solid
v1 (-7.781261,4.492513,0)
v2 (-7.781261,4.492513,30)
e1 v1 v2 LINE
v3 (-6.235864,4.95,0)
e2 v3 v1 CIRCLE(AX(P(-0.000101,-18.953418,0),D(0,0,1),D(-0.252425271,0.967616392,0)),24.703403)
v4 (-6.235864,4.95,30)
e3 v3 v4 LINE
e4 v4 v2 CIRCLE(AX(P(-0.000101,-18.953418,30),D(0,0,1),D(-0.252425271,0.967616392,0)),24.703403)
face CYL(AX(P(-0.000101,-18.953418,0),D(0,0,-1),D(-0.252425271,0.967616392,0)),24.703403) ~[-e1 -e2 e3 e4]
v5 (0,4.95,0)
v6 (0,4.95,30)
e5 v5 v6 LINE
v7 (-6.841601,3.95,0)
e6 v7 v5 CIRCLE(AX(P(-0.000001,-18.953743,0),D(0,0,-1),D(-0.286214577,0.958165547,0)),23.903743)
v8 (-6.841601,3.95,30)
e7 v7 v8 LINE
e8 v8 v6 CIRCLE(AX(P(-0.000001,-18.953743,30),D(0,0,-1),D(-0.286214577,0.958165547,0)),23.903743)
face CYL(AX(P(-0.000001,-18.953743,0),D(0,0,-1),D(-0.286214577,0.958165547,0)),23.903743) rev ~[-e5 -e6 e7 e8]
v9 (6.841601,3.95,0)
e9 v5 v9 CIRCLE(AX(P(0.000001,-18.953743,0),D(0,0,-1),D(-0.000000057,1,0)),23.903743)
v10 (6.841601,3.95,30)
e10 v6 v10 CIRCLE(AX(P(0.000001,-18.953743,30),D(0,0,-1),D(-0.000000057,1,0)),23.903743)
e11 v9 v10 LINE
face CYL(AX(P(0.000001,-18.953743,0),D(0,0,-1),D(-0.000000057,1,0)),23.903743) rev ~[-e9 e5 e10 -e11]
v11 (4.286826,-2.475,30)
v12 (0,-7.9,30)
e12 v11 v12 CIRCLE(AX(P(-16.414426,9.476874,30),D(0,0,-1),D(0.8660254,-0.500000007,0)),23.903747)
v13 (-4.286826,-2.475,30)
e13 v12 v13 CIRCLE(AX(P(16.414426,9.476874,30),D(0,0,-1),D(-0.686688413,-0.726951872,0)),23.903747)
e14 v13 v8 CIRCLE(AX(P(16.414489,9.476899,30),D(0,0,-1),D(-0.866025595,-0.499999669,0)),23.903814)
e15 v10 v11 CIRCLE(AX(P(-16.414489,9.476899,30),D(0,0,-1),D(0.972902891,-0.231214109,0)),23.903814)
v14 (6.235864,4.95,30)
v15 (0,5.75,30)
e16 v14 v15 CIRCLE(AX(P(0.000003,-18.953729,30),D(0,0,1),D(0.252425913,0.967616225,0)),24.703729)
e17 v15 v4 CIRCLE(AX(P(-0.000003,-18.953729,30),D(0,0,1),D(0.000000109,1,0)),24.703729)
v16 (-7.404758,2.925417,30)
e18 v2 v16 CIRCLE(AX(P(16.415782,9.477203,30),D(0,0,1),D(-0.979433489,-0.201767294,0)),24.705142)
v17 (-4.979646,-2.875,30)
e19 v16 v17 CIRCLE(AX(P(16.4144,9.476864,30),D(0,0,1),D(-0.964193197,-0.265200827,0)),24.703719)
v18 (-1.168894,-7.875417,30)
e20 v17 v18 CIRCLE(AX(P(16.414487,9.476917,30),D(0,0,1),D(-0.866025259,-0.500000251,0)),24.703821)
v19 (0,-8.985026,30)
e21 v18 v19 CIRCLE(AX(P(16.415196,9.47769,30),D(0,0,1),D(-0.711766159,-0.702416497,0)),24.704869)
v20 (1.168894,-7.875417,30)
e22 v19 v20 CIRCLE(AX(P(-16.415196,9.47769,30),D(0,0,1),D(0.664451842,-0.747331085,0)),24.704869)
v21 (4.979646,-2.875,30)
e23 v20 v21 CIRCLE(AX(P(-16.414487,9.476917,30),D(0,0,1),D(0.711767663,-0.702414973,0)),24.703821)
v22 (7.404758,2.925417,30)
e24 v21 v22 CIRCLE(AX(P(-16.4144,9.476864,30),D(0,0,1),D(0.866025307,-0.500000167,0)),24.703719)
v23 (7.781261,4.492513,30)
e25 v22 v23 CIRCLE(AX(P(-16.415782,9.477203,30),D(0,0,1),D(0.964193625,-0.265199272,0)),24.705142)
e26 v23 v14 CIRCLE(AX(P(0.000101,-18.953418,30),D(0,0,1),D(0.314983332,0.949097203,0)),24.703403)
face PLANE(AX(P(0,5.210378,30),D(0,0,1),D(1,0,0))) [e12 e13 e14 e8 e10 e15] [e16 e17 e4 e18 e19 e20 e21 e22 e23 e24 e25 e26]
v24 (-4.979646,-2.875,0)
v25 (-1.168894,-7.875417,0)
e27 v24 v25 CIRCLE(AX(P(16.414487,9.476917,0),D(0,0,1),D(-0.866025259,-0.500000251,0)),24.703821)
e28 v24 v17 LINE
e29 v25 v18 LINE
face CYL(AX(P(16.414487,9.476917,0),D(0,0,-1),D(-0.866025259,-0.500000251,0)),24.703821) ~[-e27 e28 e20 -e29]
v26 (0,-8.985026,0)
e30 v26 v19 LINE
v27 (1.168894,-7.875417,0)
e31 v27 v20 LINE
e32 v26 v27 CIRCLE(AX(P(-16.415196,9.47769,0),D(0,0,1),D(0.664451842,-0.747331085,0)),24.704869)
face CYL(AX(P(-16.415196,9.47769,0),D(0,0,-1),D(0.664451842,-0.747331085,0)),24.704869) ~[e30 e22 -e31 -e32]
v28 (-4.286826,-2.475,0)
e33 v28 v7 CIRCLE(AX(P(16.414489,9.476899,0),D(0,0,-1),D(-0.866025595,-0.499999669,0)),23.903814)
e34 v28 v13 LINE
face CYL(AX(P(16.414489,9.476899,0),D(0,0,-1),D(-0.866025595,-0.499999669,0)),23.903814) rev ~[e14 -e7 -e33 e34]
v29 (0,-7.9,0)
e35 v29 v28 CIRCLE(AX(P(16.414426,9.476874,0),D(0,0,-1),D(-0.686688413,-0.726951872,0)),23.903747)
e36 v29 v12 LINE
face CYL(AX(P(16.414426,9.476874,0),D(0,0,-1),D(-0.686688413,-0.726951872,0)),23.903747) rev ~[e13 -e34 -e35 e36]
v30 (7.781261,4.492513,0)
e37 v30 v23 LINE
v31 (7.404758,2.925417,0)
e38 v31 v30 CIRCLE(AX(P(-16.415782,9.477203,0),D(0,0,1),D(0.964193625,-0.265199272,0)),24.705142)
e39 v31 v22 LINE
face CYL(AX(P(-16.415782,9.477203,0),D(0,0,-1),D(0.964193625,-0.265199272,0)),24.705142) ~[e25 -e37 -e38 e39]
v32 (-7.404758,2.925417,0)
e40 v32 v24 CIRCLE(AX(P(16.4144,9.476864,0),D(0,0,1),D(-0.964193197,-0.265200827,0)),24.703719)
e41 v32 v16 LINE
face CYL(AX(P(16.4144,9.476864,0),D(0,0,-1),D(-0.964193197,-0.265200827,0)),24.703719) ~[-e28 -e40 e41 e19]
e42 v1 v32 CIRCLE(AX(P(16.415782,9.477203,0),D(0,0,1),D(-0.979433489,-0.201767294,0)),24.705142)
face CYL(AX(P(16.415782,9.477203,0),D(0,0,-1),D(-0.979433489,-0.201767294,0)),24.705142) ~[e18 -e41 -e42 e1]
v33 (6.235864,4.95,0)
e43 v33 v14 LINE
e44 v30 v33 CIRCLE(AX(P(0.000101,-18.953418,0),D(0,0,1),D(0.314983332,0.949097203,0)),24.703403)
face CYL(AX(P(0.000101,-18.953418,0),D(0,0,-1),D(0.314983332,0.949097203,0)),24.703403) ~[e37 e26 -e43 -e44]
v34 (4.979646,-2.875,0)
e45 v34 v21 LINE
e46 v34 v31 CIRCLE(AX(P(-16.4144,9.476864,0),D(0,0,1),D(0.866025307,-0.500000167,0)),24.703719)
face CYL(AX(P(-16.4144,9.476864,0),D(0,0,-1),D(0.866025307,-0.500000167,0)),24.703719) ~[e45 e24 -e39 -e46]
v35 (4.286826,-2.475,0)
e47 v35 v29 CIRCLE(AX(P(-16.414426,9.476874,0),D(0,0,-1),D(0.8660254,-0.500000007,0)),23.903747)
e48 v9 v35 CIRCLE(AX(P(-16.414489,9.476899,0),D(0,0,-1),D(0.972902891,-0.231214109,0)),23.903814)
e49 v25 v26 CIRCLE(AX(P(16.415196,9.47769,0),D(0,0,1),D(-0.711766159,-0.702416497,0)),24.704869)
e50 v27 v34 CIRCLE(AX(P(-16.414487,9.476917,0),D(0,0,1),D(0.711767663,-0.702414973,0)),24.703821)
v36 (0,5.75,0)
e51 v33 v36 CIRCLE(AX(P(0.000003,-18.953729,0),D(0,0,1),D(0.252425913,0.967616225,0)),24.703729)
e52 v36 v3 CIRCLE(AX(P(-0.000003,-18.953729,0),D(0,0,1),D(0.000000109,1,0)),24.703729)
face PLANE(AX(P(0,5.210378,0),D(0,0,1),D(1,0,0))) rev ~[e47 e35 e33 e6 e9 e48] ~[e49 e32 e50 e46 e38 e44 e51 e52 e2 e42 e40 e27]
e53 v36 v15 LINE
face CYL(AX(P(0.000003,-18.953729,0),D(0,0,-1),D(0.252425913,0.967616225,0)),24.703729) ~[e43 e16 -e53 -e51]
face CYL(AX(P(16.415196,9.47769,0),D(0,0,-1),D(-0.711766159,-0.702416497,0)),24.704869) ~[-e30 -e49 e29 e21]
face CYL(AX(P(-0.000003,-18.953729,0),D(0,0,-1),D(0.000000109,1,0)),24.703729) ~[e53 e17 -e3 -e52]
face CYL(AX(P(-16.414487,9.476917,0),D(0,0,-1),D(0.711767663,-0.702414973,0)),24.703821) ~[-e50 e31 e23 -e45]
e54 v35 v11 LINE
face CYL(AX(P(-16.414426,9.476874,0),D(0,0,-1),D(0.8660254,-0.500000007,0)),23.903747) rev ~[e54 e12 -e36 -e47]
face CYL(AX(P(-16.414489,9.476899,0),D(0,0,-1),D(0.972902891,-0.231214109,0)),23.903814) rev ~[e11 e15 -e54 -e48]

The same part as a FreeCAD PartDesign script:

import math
import FreeCAD as App
import Part
import Sketcher
from FreeCAD import Vector
Q = App.Units.Quantity

doc = App.newDocument("Part")
body = doc.addObject("PartDesign::Body", "Body")

# Sketch on XY plane
sketch1 = body.newObject("Sketcher::SketchObject", "Sketch")
sketch1.AttachmentSupport = (doc.getObject("XY_Plane"), [""])
sketch1.MapMode = "FlatFace"
sketch1.addGeometry([
    Part.ArcOfCircle(Part.Circle(Vector(-16.415196, 9.47769, 0), Vector(0, 0, 1), 24.704869), math.radians(-48.359714), math.radians(-44.621203)),  # 0
    Part.ArcOfCircle(Part.Circle(Vector(-16.414487, 9.476917, 0), Vector(0, 0, 1), 24.703821), math.radians(-44.62108), math.radians(-30.000017)),  # 1
    Part.ArcOfCircle(Part.Circle(Vector(-16.4144, 9.476864, 0), Vector(0, 0, 1), 24.703719), math.radians(-30.000011), math.radians(-15.378886)),  # 2
    Part.ArcOfCircle(Part.Circle(Vector(-16.415782, 9.477203, 0), Vector(0, 0, 1), 24.705142), math.radians(-15.378794), math.radians(-11.640325)),  # 3
    Part.ArcOfCircle(Part.Circle(Vector(0.000101, -18.953418, 0), Vector(0, 0, 1), 24.703403), math.radians(71.640192), math.radians(75.378926)),  # 4
    Part.ArcOfCircle(Part.Circle(Vector(0.000003, -18.953729, 0), Vector(0, 0, 1), 24.703729), math.radians(75.378888), math.radians(90.000006)),  # 5
    Part.ArcOfCircle(Part.Circle(Vector(-0.000003, -18.953729, 0), Vector(0, 0, 1), 24.703729), math.radians(89.999994), math.radians(104.621112)),  # 6
    Part.ArcOfCircle(Part.Circle(Vector(-0.000101, -18.953418, 0), Vector(0, 0, 1), 24.703403), math.radians(104.621074), math.radians(108.359808)),  # 7
    Part.ArcOfCircle(Part.Circle(Vector(16.415782, 9.477203, 0), Vector(0, 0, 1), 24.705142), math.radians(-168.359675), math.radians(-164.621206)),  # 8
    Part.ArcOfCircle(Part.Circle(Vector(16.4144, 9.476864, 0), Vector(0, 0, 1), 24.703719), math.radians(-164.621114), math.radians(-149.999989)),  # 9
    Part.ArcOfCircle(Part.Circle(Vector(16.414487, 9.476917, 0), Vector(0, 0, 1), 24.703821), math.radians(-149.999983), math.radians(-135.37892)),  # 10
    Part.ArcOfCircle(Part.Circle(Vector(16.415196, 9.47769, 0), Vector(0, 0, 1), 24.704869), math.radians(-135.378797), math.radians(-131.640286)),  # 11
    Part.ArcOfCircle(Part.Circle(Vector(-16.414489, 9.476899, 0), Vector(0, 0, 1), 23.903814), math.radians(-29.999978), math.radians(-13.368562)),  # 12
    Part.ArcOfCircle(Part.Circle(Vector(-16.414426, 9.476874, 0), Vector(0, 0, 1), 23.903747), math.radians(-46.631464), math.radians(-30)),  # 13
    Part.ArcOfCircle(Part.Circle(Vector(16.414426, 9.476874, 0), Vector(0, 0, 1), 23.903747), math.radians(-150), math.radians(-133.368536)),  # 14
    Part.ArcOfCircle(Part.Circle(Vector(16.414489, 9.476899, 0), Vector(0, 0, 1), 23.903814), math.radians(-166.631438), math.radians(-150.000022)),  # 15
    Part.ArcOfCircle(Part.Circle(Vector(-0.000001, -18.953743, 0), Vector(0, 0, 1), 23.903743), math.radians(89.999997), math.radians(106.631463)),  # 16
    Part.ArcOfCircle(Part.Circle(Vector(0.000001, -18.953743, 0), Vector(0, 0, 1), 23.903743), math.radians(73.368537), math.radians(90.000003)),  # 17
], False)
sketch1.addConstraint([
    Sketcher.Constraint("Coincident", 0, 2, 1, 1),
    Sketcher.Constraint("Coincident", 1, 2, 2, 1),
    Sketcher.Constraint("Coincident", 2, 2, 3, 1),
    Sketcher.Constraint("Coincident", 3, 2, 4, 1),
    Sketcher.Constraint("Coincident", 4, 2, 5, 1),
    Sketcher.Constraint("Coincident", 5, 2, 6, 1),
    Sketcher.Constraint("Coincident", 6, 2, 7, 1),
    Sketcher.Constraint("Coincident", 7, 2, 8, 1),
    Sketcher.Constraint("Coincident", 8, 2, 9, 1),
    Sketcher.Constraint("Coincident", 9, 2, 10, 1),
    Sketcher.Constraint("Coincident", 10, 2, 11, 1),
    Sketcher.Constraint("Coincident", 11, 2, 0, 1),
    Sketcher.Constraint("Coincident", 12, 1, 13, 2),
    Sketcher.Constraint("Coincident", 13, 1, 14, 2),
    Sketcher.Constraint("Coincident", 14, 1, 15, 2),
    Sketcher.Constraint("Coincident", 15, 1, 16, 2),
    Sketcher.Constraint("Coincident", 16, 1, 17, 2),
    Sketcher.Constraint("Coincident", 17, 1, 12, 2),
    Sketcher.Constraint("Coincident", 6, 3, 5, 3),
    Sketcher.Constraint("Coincident", 17, 3, 16, 3),
    Sketcher.Constraint("PointOnObject", 16, 3, -2),
    Sketcher.Constraint("PointOnObject", 5, 2, -2),
    Sketcher.Constraint("PointOnObject", 11, 2, -2),
    Sketcher.Constraint("PointOnObject", 13, 1, -2),
    Sketcher.Constraint("PointOnObject", 16, 1, -2),
    Sketcher.Constraint("DistanceY", 15, 1, 6, 2, Q("1 mm")),
    Sketcher.Constraint("DistanceY", 15, 1, 16, 1, Q("1 mm")),
    Sketcher.Constraint("DistanceY", 17, 1, 4, 2, Q("1 mm")),
    Sketcher.Constraint("DistanceY", 17, 1, 16, 1, Q("1 mm")),
    Sketcher.Constraint("DistanceY", 13, 1, -1, 1, Q("7.9 mm")),
    Sketcher.Constraint("DistanceY", 4, 2, 5, 2, Q("0.8 mm")),
    Sketcher.Constraint("DistanceY", 1, 2, 12, 1, Q("0.4 mm")),
    Sketcher.Constraint("DistanceY", 9, 2, 14, 1, Q("0.4 mm")),
    Sketcher.Constraint("DistanceY", -1, 1, 4, 2, Q("4.95 mm")),
    Sketcher.Constraint("Radius", 0, Q("24.704869 mm")),
    Sketcher.Constraint("Radius", 1, Q("24.703821 mm")),
    Sketcher.Constraint("Radius", 2, Q("24.703719 mm")),
    Sketcher.Constraint("Radius", 3, Q("24.705142 mm")),
    Sketcher.Constraint("Radius", 5, Q("24.703729 mm")),
    Sketcher.Constraint("Radius", 8, Q("24.705142 mm")),
    Sketcher.Constraint("Radius", 9, Q("24.703719 mm")),
    Sketcher.Constraint("Radius", 10, Q("24.703821 mm")),
    Sketcher.Constraint("Radius", 11, Q("24.704869 mm")),
    Sketcher.Constraint("DistanceY", 1, 2, -1, 1, Q("2.875 mm")),
    Sketcher.Constraint("DistanceY", 9, 2, -1, 1, Q("2.875 mm")),
    Sketcher.Constraint("Radius", 4, Q("24.703403 mm")),
    Sketcher.Constraint("Radius", 7, Q("24.703403 mm")),
    Sketcher.Constraint("Radius", 12, Q("23.903814 mm")),
    Sketcher.Constraint("Radius", 13, Q("23.903747 mm")),
    Sketcher.Constraint("Radius", 14, Q("23.903747 mm")),
    Sketcher.Constraint("Radius", 15, Q("23.903814 mm")),
    Sketcher.Constraint("Radius", 16, Q("23.903743 mm")),
    Sketcher.Constraint("DistanceY", 4, 3, 0, 2, Q("11.078001 mm")),
    Sketcher.Constraint("DistanceY", 7, 3, 0, 2, Q("11.078001 mm")),
    Sketcher.Constraint("DistanceY", 7, 3, 10, 2, Q("11.078001 mm")),
    Sketcher.Constraint("DistanceX", 2, 3, -1, 1, Q("16.4144 mm")),
    Sketcher.Constraint("DistanceX", -1, 1, 4, 3, Q("0.000101 mm")),
    Sketcher.Constraint("DistanceX", 7, 3, -1, 1, Q("0.000101 mm")),
    Sketcher.Constraint("DistanceX", -1, 1, 9, 3, Q("16.4144 mm")),
    Sketcher.Constraint("DistanceY", -1, 1, 12, 3, Q("9.476899 mm")),
    Sketcher.Constraint("DistanceY", -1, 1, 15, 3, Q("9.476899 mm")),
    Sketcher.Constraint("DistanceX", 0, 3, 5, 3, Q("16.415198 mm")),
    Sketcher.Constraint("DistanceY", 2, 2, 10, 3, Q("6.5515 mm")),
    Sketcher.Constraint("DistanceY", -1, 1, 0, 3, Q("9.47769 mm")),
    Sketcher.Constraint("DistanceY", -1, 1, 11, 3, Q("9.47769 mm")),
    Sketcher.Constraint("DistanceX", -1, 1, 2, 2, Q("7.404758 mm")),
    Sketcher.Constraint("DistanceX", -1, 1, 3, 2, Q("7.781261 mm")),
    Sketcher.Constraint("DistanceX", 7, 2, -1, 1, Q("7.781261 mm")),
    Sketcher.Constraint("DistanceX", 0, 3, 1, 3, Q("0.000709 mm")),
    Sketcher.Constraint("DistanceX", 13, 3, 8, 2, Q("9.009668 mm")),
])
pad1 = body.newObject("PartDesign::Pad", "Pad")
pad1.Profile = sketch1
pad1.Length = 30

doc.recompute()
